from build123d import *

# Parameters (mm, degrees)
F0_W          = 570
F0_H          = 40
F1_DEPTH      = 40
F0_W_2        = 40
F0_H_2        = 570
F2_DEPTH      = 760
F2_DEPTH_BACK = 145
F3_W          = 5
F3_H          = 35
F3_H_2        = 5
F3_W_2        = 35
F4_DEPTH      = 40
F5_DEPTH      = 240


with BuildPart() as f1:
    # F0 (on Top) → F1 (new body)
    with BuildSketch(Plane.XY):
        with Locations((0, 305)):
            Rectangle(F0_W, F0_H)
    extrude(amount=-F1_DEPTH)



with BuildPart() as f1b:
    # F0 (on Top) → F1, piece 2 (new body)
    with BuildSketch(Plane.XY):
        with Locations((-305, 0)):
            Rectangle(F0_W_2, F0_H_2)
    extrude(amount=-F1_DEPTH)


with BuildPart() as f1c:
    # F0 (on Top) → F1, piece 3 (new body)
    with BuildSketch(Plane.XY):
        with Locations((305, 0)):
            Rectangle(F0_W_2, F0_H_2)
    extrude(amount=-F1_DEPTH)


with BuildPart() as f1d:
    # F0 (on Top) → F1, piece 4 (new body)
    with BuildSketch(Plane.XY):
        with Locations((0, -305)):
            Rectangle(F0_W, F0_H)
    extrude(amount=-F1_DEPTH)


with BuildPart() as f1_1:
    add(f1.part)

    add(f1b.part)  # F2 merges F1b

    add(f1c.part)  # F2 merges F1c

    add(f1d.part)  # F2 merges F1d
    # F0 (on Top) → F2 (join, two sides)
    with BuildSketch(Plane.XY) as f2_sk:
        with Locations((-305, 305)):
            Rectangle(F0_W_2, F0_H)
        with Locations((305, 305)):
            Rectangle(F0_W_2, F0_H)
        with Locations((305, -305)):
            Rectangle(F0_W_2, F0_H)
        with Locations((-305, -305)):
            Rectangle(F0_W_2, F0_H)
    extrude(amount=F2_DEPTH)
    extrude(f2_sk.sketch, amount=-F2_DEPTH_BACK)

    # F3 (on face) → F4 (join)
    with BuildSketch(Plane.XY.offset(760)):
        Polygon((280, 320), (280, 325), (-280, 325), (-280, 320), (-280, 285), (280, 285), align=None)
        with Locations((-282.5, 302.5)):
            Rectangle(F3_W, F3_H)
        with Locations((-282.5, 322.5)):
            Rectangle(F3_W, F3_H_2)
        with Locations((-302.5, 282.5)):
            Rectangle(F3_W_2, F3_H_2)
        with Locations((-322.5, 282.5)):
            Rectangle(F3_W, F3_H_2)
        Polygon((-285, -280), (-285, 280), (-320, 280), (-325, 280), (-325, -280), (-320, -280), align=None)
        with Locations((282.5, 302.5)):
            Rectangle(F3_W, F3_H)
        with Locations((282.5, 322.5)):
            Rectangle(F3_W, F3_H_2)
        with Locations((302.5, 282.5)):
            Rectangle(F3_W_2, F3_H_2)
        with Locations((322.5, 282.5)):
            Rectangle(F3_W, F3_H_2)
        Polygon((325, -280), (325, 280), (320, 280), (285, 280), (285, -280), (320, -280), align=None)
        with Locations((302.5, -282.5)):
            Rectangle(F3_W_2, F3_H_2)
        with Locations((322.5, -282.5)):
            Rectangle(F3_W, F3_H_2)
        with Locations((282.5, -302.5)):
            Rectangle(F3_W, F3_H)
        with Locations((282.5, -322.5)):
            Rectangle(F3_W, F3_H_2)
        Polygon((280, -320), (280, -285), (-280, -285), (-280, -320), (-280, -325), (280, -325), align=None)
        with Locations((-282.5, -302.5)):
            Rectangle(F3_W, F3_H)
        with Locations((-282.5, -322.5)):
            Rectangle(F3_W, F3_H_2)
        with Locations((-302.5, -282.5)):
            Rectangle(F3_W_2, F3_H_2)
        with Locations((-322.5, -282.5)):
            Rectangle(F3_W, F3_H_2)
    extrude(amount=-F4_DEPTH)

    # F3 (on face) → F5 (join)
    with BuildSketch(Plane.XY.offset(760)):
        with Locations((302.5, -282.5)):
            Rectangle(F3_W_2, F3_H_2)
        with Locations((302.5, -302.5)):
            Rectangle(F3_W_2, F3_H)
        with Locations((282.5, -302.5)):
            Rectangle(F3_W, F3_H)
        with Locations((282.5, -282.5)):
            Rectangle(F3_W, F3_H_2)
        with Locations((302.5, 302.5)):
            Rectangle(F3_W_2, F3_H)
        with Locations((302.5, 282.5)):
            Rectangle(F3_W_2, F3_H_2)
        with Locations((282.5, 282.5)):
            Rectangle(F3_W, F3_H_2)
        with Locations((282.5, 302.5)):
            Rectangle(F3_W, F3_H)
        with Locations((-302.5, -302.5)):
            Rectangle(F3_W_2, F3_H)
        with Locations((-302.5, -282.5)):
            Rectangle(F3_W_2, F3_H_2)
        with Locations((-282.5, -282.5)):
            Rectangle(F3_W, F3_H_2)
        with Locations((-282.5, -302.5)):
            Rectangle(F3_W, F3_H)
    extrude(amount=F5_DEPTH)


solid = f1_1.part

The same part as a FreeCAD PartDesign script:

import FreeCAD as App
import Part
import Sketcher
Q = App.Units.Quantity


def add_polygon(sketch, points):
    """Adds a closed chain of lines whose ends are joined by coincident constraints."""
    first, n = sketch.GeometryCount, len(points)
    for a, b in zip(points, points[1:] + points[:1]):
        sketch.addGeometry(Part.LineSegment(App.Vector(*a, 0), App.Vector(*b, 0)), False)
    for i in range(n):
        sketch.addConstraint(Sketcher.Constraint("Coincident", first + i, 2, first + (i + 1) % n, 1))

doc = App.newDocument("Part")
params = doc.addObject("Spreadsheet::Sheet", "Params")
for row, (alias, value) in enumerate([
    ("sketch1_width", "570 mm"),
    ("sketch1_height", "40 mm"),
    ("pad1_length", "40 mm"),
    ("sketch2_width", "40 mm"),
    ("sketch2_height", "570 mm"),
    ("pad2_length", "40 mm"),
    ("sketch3_width", "40 mm"),
    ("sketch3_height", "570 mm"),
    ("pad3_length", "40 mm"),
    ("sketch4_width", "570 mm"),
    ("sketch4_height", "40 mm"),
    ("pad4_length", "40 mm"),
    ("sketch5_width", "40 mm"),
    ("pad5_length", "760 mm"),
    ("pad5_length2", "145 mm"),
    ("sketch6_width", "570 mm"),
    ("sketch6_width2", "40 mm"),
    ("pad6_length", "40 mm"),
    ("sketch7_width", "40 mm"),
    ("pad7_length", "240 mm"),
], start=1):
    params.set(f"A{row}", alias)
    params.set(f"B{row}", "=" + value)
    params.setAlias(f"B{row}", alias)

body = doc.addObject("PartDesign::Body", "Body")

sketch1 = doc.addObject("Sketcher::SketchObject", "Sketch")
body.addObject(sketch1)
sketch1.AttachmentSupport = (doc.XY_Plane, [""])
sketch1.MapMode = "FlatFace"
add_polygon(sketch1, [(-285, 325), (-285, 285), (285, 285), (285, 325)])
sketch1.addConstraint(Sketcher.Constraint("Vertical", 0))
sketch1.addConstraint(Sketcher.Constraint("Horizontal", 1))
sketch1.addConstraint(Sketcher.Constraint("Vertical", 2))
sketch1.addConstraint(Sketcher.Constraint("Horizontal", 3))
sketch1.addConstraint(Sketcher.Constraint("DistanceX", 1, 1, 1, 2, Q("570 mm")))
sketch1.addConstraint(Sketcher.Constraint("DistanceY", 0, 2, 0, 1, Q("40 mm")))
sketch1.addConstraint(Sketcher.Constraint("DistanceX", 0, 2, -1, 1, Q("285 mm")))
sketch1.addConstraint(Sketcher.Constraint("DistanceY", -1, 1, 0, 2, Q("285 mm")))
sketch1.setExpression("Constraints[8]", "Params.sketch1_width")
sketch1.setExpression("Constraints[9]", "Params.sketch1_height")
pad1 = doc.addObject("PartDesign::Pad", "Pad")
body.addObject(pad1)
pad1.Profile = sketch1
pad1.setExpression("Length", "Params.pad1_length")
pad1.Reversed = True
body2 = doc.addObject("PartDesign::Body", "Body001")

sketch2 = doc.addObject("Sketcher::SketchObject", "Sketch001")
body2.addObject(sketch2)
sketch2.AttachmentSupport = (doc.getObject("XY_Plane001"), [""])
sketch2.MapMode = "FlatFace"
add_polygon(sketch2, [(-325, 285), (-325, -285), (-285, -285), (-285, 285)])
sketch2.addConstraint(Sketcher.Constraint("Vertical", 0))
sketch2.addConstraint(Sketcher.Constraint("Horizontal", 1))
sketch2.addConstraint(Sketcher.Constraint("Vertical", 2))
sketch2.addConstraint(Sketcher.Constraint("Horizontal", 3))
sketch2.addConstraint(Sketcher.Constraint("DistanceX", 1, 1, 1, 2, Q("40 mm")))
sketch2.addConstraint(Sketcher.Constraint("DistanceY", 0, 2, 0, 1, Q("570 mm")))
sketch2.addConstraint(Sketcher.Constraint("DistanceX", 0, 2, -1, 1, Q("325 mm")))
sketch2.addConstraint(Sketcher.Constraint("DistanceY", 0, 2, -1, 1, Q("285 mm")))
sketch2.setExpression("Constraints[8]", "Params.sketch2_width")
sketch2.setExpression("Constraints[9]", "Params.sketch2_height")
pad2 = doc.addObject("PartDesign::Pad", "Pad001")
body2.addObject(pad2)
pad2.Profile = sketch2
pad2.setExpression("Length", "Params.pad2_length")
pad2.Reversed = True
body3 = doc.addObject("PartDesign::Body", "Body002")

sketch3 = doc.addObject("Sketcher::SketchObject", "Sketch002")
body3.addObject(sketch3)
sketch3.AttachmentSupport = (doc.getObject("XY_Plane002"), [""])
sketch3.MapMode = "FlatFace"
add_polygon(sketch3, [(285, 285), (285, -285), (325, -285), (325, 285)])
sketch3.addConstraint(Sketcher.Constraint("Vertical", 0))
sketch3.addConstraint(Sketcher.Constraint("Horizontal", 1))
sketch3.addConstraint(Sketcher.Constraint("Vertical", 2))
sketch3.addConstraint(Sketcher.Constraint("Horizontal", 3))
sketch3.addConstraint(Sketcher.Constraint("DistanceX", 1, 1, 1, 2, Q("40 mm")))
sketch3.addConstraint(Sketcher.Constraint("DistanceY", 0, 2, 0, 1, Q("570 mm")))
sketch3.addConstraint(Sketcher.Constraint("DistanceX", -1, 1, 0, 2, Q("285 mm")))
sketch3.addConstraint(Sketcher.Constraint("DistanceY", 0, 2, -1, 1, Q("285 mm")))
sketch3.setExpression("Constraints[8]", "Params.sketch3_width")
sketch3.setExpression("Constraints[9]", "Params.sketch3_height")
pad3 = doc.addObject("PartDesign::Pad", "Pad002")
body3.addObject(pad3)
pad3.Profile = sketch3
pad3.setExpression("Length", "Params.pad3_length")
pad3.Reversed = True
body4 = doc.addObject("PartDesign::Body", "Body003")

sketch4 = doc.addObject("Sketcher::SketchObject", "Sketch003")
body4.addObject(sketch4)
sketch4.AttachmentSupport = (doc.getObject("XY_Plane003"), [""])
sketch4.MapMode = "FlatFace"
add_polygon(sketch4, [(-285, -285), (-285, -325), (285, -325), (285, -285)])
sketch4.addConstraint(Sketcher.Constraint("Vertical", 0))
sketch4.addConstraint(Sketcher.Constraint("Horizontal", 1))
sketch4.addConstraint(Sketcher.Constraint("Vertical", 2))
sketch4.addConstraint(Sketcher.Constraint("Horizontal", 3))
sketch4.addConstraint(Sketcher.Constraint("DistanceX", 1, 1, 1, 2, Q("570 mm")))
sketch4.addConstraint(Sketcher.Constraint("DistanceY", 0, 2, 0, 1, Q("40 mm")))
sketch4.addConstraint(Sketcher.Constraint("DistanceX", 0, 2, -1, 1, Q("285 mm")))
sketch4.addConstraint(Sketcher.Constraint("DistanceY", 0, 2, -1, 1, Q("325 mm")))
sketch4.setExpression("Constraints[8]", "Params.sketch4_width")
sketch4.setExpression("Constraints[9]", "Params.sketch4_height")
pad4 = doc.addObject("PartDesign::Pad", "Pad003")
body4.addObject(pad4)
pad4.Profile = sketch4
pad4.setExpression("Length", "Params.pad4_length")
pad4.Reversed = True
body.AllowCompound = True
doc.recompute()

boolean = doc.addObject("PartDesign::Boolean", "Boolean")
body.addObject(boolean)
boolean.Type = "Fuse"
boolean.addObjects([body2])
doc.recompute()

boolean2 = doc.addObject("PartDesign::Boolean", "Boolean001")
body.addObject(boolean2)
boolean2.Type = "Fuse"
boolean2.addObjects([body3])
doc.recompute()

boolean3 = doc.addObject("PartDesign::Boolean", "Boolean002")
body.addObject(boolean3)
boolean3.Type = "Fuse"
boolean3.addObjects([body4])

sketch5 = doc.addObject("Sketcher::SketchObject", "Sketch004")
body.addObject(sketch5)
sketch5.AttachmentSupport = (doc.XY_Plane, [""])
sketch5.MapMode = "FlatFace"
add_polygon(sketch5, [(-325, 325), (-325, 285), (-285, 285), (-285, 325)])
add_polygon(sketch5, [(285, 325), (285, 285), (325, 285), (325, 325)])
add_polygon(sketch5, [(285, -285), (285, -325), (325, -325), (325, -285)])
add_polygon(sketch5, [(-325, -285), (-325, -325), (-285, -325), (-285, -285)])
sketch5.addConstraint(Sketcher.Constraint("Vertical", 0))
sketch5.addConstraint(Sketcher.Constraint("Horizontal", 1))
sketch5.addConstraint(Sketcher.Constraint("Vertical", 2))
sketch5.addConstraint(Sketcher.Constraint("Horizontal", 3))
sketch5.addConstraint(Sketcher.Constraint("Vertical", 4))
sketch5.addConstraint(Sketcher.Constraint("Horizontal", 5))
sketch5.addConstraint(Sketcher.Constraint("Vertical", 6))
sketch5.addConstraint(Sketcher.Constraint("Horizontal", 7))
sketch5.addConstraint(Sketcher.Constraint("Vertical", 8))
sketch5.addConstraint(Sketcher.Constraint("Horizontal", 9))
sketch5.addConstraint(Sketcher.Constraint("Vertical", 10))
sketch5.addConstraint(Sketcher.Constraint("Horizontal", 11))
sketch5.addConstraint(Sketcher.Constraint("Vertical", 12))
sketch5.addConstraint(Sketcher.Constraint("Horizontal", 13))
sketch5.addConstraint(Sketcher.Constraint("Vertical", 14))
sketch5.addConstraint(Sketcher.Constraint("Horizontal", 15))
sketch5.addConstraint(Sketcher.Constraint("Symmetric", 2, 2, 8, 2, -1, 1))
sketch5.addConstraint(Sketcher.Constraint("Symmetric", 0, 2, 10, 2, -1, 1))
sketch5.addConstraint(Sketcher.Constraint("Symmetric", 6, 2, 12, 2, -1, 1))
sketch5.addConstraint(Sketcher.Constraint("Symmetric", 4, 2, 14, 2, -1, 1))
sketch5.addConstraint(Sketcher.Constraint("Symmetric", 1, 2, 4, 2, -2))
sketch5.addConstraint(Sketcher.Constraint("Symmetric", 3, 2, 6, 2, -2))
sketch5.addConstraint(Sketcher.Constraint("Equal", 15, 0))
sketch5.addConstraint(Sketcher.Constraint("DistanceX", 1, 1, 1, 2, Q("40 mm")))
sketch5.addConstraint(Sketcher.Constraint("DistanceX", 0, 2, -1, 1, Q("325 mm")))
sketch5.addConstraint(Sketcher.Constraint("DistanceY", -1, 1, 0, 2, Q("285 mm")))
sketch5.setExpression("Constraints[39]", "Params.sketch5_width")
pad5 = doc.addObject("PartDesign::Pad", "Pad004")
body.addObject(pad5)
pad5.Profile = sketch5
pad5.Type = "TwoLengths"
pad5.setExpression("Length", "Params.pad5_length")
pad5.setExpression("Length2", "Params.pad5_length2")

sketch6 = doc.addObject("Sketcher::SketchObject", "Sketch005")
body.addObject(sketch6)
sketch6.AttachmentSupport = (doc.XY_Plane, [""])
sketch6.MapMode = "FlatFace"
sketch6.AttachmentOffset = App.Placement(App.Vector(0, 0, 760), App.Rotation())
add_polygon(sketch6, [(-285, 325), (-285, 285), (285, 285), (285, 325)])
add_polygon(sketch6, [(-285, 285), (-325, 285), (-325, -285), (-285, -285)])
add_polygon(sketch6, [(285, 285), (285, -285), (325, -285), (325, 285)])
add_polygon(sketch6, [(285, -325), (285, -285), (-285, -285), (-285, -325)])
sketch6.addConstraint(Sketcher.Constraint("Vertical", 0))
sketch6.addConstraint(Sketcher.Constraint("Horizontal", 1))
sketch6.addConstraint(Sketcher.Constraint("Vertical", 2))
sketch6.addConstraint(Sketcher.Constraint("Horizontal", 3))
sketch6.addConstraint(Sketcher.Constraint("Horizontal", 4))
sketch6.addConstraint(Sketcher.Constraint("Vertical", 5))
sketch6.addConstraint(Sketcher.Constraint("Horizontal", 6))
sketch6.addConstraint(Sketcher.Constraint("Vertical", 7))
sketch6.addConstraint(Sketcher.Constraint("Vertical", 8))
sketch6.addConstraint(Sketcher.Constraint("Horizontal", 9))
sketch6.addConstraint(Sketcher.Constraint("Vertical", 10))
sketch6.addConstraint(Sketcher.Constraint("Horizontal", 11))
sketch6.addConstraint(Sketcher.Constraint("Vertical", 12))
sketch6.addConstraint(Sketcher.Constraint("Horizontal", 13))
sketch6.addConstraint(Sketcher.Constraint("Vertical", 14))
sketch6.addConstraint(Sketcher.Constraint("Horizontal", 15))
sketch6.addConstraint(Sketcher.Constraint("Coincident", 7, 2, 0, 2))
sketch6.addConstraint(Sketcher.Constraint("Coincident", 11, 2, 1, 2))
sketch6.addConstraint(Sketcher.Constraint("Coincident", 12, 2, 8, 2))
sketch6.addConstraint(Sketcher.Constraint("Coincident", 13, 2, 6, 2))
sketch6.addConstraint(Sketcher.Constraint("Symmetric", 1, 2, 6, 2, -1, 1))
sketch6.addConstraint(Sketcher.Constraint("Equal", 6, 9))
sketch6.addConstraint(Sketcher.Constraint("Equal", 11, 0))
sketch6.addConstraint(Sketcher.Constraint("Equal", 15, 5))
sketch6.addConstraint(Sketcher.Constraint("Equal", 2, 12))
sketch6.addConstraint(Sketcher.Constraint("DistanceX", 1, 1, 1, 2, Q("570 mm")))
sketch6.addConstraint(Sketcher.Constraint("DistanceX", 4, 2, 4, 1, Q("40 mm")))
sketch6.setExpression("Constraints[41]", "Params.sketch6_width")
sketch6.setExpression("Constraints[42]", "Params.sketch6_width2")
pad6 = doc.addObject("PartDesign::Pad", "Pad005")
body.addObject(pad6)
pad6.Profile = sketch6
pad6.setExpression("Length", "Params.pad6_length")
pad6.Reversed = True

sketch7 = doc.addObject("Sketcher::SketchObject", "Sketch006")
body.addObject(sketch7)
sketch7.AttachmentSupport = (doc.XY_Plane, [""])
sketch7.MapMode = "FlatFace"
sketch7.AttachmentOffset = App.Placement(App.Vector(0, 0, 760), App.Rotation())
add_polygon(sketch7, [(280, -320), (320, -320), (320, -280), (280, -280)])
add_polygon(sketch7, [(280, 280), (320, 280), (320, 320), (280, 320)])
add_polygon(sketch7, [(-320, -320), (-280, -320), (-280, -280), (-320, -280)])
sketch7.addConstraint(Sketcher.Constraint("Horizontal", 0))
sketch7.addConstraint(Sketcher.Constraint("Vertical", 1))
sketch7.addConstraint(Sketcher.Constraint("Horizontal", 2))
sketch7.addConstraint(Sketcher.Constraint("Vertical", 3))
sketch7.addConstraint(Sketcher.Constraint("Horizontal", 4))
sketch7.addConstraint(Sketcher.Constraint("Vertical", 5))
sketch7.addConstraint(Sketcher.Constraint("Horizontal", 6))
sketch7.addConstraint(Sketcher.Constraint("Vertical", 7))
sketch7.addConstraint(Sketcher.Constraint("Horizontal", 8))
sketch7.addConstraint(Sketcher.Constraint("Vertical", 9))
sketch7.addConstraint(Sketcher.Constraint("Horizontal", 10))
sketch7.addConstraint(Sketcher.Constraint("Vertical", 11))
sketch7.addConstraint(Sketcher.Constraint("Symmetric", 6, 2, 8, 2, -1, 1))
sketch7.addConstraint(Sketcher.Constraint("Symmetric", 4, 2, 10, 2, -1, 1))
sketch7.addConstraint(Sketcher.Constraint("Symmetric", 3, 2, 8, 2, -2))
sketch7.addConstraint(Sketcher.Constraint("Symmetric", 1, 2, 10, 2, -2))
sketch7.addConstraint(Sketcher.Constraint("Equal", 10, 1))
sketch7.addConstraint(Sketcher.Constraint("DistanceX", 0, 1, 0, 2, Q("40 mm")))
sketch7.addConstraint(Sketcher.Constraint("DistanceX", -1, 1, 0, 2, Q("320 mm")))
sketch7.addConstraint(Sketcher.Constraint("DistanceY", 0, 2, -1, 1, Q("320 mm")))
sketch7.setExpression("Constraints[29]", "Params.sketch7_width")
pad7 = doc.addObject("PartDesign::Pad", "Pad006")
body.addObject(pad7)
pad7.Profile = sketch7
pad7.setExpression("Length", "Params.pad7_length")

doc.recompute()
